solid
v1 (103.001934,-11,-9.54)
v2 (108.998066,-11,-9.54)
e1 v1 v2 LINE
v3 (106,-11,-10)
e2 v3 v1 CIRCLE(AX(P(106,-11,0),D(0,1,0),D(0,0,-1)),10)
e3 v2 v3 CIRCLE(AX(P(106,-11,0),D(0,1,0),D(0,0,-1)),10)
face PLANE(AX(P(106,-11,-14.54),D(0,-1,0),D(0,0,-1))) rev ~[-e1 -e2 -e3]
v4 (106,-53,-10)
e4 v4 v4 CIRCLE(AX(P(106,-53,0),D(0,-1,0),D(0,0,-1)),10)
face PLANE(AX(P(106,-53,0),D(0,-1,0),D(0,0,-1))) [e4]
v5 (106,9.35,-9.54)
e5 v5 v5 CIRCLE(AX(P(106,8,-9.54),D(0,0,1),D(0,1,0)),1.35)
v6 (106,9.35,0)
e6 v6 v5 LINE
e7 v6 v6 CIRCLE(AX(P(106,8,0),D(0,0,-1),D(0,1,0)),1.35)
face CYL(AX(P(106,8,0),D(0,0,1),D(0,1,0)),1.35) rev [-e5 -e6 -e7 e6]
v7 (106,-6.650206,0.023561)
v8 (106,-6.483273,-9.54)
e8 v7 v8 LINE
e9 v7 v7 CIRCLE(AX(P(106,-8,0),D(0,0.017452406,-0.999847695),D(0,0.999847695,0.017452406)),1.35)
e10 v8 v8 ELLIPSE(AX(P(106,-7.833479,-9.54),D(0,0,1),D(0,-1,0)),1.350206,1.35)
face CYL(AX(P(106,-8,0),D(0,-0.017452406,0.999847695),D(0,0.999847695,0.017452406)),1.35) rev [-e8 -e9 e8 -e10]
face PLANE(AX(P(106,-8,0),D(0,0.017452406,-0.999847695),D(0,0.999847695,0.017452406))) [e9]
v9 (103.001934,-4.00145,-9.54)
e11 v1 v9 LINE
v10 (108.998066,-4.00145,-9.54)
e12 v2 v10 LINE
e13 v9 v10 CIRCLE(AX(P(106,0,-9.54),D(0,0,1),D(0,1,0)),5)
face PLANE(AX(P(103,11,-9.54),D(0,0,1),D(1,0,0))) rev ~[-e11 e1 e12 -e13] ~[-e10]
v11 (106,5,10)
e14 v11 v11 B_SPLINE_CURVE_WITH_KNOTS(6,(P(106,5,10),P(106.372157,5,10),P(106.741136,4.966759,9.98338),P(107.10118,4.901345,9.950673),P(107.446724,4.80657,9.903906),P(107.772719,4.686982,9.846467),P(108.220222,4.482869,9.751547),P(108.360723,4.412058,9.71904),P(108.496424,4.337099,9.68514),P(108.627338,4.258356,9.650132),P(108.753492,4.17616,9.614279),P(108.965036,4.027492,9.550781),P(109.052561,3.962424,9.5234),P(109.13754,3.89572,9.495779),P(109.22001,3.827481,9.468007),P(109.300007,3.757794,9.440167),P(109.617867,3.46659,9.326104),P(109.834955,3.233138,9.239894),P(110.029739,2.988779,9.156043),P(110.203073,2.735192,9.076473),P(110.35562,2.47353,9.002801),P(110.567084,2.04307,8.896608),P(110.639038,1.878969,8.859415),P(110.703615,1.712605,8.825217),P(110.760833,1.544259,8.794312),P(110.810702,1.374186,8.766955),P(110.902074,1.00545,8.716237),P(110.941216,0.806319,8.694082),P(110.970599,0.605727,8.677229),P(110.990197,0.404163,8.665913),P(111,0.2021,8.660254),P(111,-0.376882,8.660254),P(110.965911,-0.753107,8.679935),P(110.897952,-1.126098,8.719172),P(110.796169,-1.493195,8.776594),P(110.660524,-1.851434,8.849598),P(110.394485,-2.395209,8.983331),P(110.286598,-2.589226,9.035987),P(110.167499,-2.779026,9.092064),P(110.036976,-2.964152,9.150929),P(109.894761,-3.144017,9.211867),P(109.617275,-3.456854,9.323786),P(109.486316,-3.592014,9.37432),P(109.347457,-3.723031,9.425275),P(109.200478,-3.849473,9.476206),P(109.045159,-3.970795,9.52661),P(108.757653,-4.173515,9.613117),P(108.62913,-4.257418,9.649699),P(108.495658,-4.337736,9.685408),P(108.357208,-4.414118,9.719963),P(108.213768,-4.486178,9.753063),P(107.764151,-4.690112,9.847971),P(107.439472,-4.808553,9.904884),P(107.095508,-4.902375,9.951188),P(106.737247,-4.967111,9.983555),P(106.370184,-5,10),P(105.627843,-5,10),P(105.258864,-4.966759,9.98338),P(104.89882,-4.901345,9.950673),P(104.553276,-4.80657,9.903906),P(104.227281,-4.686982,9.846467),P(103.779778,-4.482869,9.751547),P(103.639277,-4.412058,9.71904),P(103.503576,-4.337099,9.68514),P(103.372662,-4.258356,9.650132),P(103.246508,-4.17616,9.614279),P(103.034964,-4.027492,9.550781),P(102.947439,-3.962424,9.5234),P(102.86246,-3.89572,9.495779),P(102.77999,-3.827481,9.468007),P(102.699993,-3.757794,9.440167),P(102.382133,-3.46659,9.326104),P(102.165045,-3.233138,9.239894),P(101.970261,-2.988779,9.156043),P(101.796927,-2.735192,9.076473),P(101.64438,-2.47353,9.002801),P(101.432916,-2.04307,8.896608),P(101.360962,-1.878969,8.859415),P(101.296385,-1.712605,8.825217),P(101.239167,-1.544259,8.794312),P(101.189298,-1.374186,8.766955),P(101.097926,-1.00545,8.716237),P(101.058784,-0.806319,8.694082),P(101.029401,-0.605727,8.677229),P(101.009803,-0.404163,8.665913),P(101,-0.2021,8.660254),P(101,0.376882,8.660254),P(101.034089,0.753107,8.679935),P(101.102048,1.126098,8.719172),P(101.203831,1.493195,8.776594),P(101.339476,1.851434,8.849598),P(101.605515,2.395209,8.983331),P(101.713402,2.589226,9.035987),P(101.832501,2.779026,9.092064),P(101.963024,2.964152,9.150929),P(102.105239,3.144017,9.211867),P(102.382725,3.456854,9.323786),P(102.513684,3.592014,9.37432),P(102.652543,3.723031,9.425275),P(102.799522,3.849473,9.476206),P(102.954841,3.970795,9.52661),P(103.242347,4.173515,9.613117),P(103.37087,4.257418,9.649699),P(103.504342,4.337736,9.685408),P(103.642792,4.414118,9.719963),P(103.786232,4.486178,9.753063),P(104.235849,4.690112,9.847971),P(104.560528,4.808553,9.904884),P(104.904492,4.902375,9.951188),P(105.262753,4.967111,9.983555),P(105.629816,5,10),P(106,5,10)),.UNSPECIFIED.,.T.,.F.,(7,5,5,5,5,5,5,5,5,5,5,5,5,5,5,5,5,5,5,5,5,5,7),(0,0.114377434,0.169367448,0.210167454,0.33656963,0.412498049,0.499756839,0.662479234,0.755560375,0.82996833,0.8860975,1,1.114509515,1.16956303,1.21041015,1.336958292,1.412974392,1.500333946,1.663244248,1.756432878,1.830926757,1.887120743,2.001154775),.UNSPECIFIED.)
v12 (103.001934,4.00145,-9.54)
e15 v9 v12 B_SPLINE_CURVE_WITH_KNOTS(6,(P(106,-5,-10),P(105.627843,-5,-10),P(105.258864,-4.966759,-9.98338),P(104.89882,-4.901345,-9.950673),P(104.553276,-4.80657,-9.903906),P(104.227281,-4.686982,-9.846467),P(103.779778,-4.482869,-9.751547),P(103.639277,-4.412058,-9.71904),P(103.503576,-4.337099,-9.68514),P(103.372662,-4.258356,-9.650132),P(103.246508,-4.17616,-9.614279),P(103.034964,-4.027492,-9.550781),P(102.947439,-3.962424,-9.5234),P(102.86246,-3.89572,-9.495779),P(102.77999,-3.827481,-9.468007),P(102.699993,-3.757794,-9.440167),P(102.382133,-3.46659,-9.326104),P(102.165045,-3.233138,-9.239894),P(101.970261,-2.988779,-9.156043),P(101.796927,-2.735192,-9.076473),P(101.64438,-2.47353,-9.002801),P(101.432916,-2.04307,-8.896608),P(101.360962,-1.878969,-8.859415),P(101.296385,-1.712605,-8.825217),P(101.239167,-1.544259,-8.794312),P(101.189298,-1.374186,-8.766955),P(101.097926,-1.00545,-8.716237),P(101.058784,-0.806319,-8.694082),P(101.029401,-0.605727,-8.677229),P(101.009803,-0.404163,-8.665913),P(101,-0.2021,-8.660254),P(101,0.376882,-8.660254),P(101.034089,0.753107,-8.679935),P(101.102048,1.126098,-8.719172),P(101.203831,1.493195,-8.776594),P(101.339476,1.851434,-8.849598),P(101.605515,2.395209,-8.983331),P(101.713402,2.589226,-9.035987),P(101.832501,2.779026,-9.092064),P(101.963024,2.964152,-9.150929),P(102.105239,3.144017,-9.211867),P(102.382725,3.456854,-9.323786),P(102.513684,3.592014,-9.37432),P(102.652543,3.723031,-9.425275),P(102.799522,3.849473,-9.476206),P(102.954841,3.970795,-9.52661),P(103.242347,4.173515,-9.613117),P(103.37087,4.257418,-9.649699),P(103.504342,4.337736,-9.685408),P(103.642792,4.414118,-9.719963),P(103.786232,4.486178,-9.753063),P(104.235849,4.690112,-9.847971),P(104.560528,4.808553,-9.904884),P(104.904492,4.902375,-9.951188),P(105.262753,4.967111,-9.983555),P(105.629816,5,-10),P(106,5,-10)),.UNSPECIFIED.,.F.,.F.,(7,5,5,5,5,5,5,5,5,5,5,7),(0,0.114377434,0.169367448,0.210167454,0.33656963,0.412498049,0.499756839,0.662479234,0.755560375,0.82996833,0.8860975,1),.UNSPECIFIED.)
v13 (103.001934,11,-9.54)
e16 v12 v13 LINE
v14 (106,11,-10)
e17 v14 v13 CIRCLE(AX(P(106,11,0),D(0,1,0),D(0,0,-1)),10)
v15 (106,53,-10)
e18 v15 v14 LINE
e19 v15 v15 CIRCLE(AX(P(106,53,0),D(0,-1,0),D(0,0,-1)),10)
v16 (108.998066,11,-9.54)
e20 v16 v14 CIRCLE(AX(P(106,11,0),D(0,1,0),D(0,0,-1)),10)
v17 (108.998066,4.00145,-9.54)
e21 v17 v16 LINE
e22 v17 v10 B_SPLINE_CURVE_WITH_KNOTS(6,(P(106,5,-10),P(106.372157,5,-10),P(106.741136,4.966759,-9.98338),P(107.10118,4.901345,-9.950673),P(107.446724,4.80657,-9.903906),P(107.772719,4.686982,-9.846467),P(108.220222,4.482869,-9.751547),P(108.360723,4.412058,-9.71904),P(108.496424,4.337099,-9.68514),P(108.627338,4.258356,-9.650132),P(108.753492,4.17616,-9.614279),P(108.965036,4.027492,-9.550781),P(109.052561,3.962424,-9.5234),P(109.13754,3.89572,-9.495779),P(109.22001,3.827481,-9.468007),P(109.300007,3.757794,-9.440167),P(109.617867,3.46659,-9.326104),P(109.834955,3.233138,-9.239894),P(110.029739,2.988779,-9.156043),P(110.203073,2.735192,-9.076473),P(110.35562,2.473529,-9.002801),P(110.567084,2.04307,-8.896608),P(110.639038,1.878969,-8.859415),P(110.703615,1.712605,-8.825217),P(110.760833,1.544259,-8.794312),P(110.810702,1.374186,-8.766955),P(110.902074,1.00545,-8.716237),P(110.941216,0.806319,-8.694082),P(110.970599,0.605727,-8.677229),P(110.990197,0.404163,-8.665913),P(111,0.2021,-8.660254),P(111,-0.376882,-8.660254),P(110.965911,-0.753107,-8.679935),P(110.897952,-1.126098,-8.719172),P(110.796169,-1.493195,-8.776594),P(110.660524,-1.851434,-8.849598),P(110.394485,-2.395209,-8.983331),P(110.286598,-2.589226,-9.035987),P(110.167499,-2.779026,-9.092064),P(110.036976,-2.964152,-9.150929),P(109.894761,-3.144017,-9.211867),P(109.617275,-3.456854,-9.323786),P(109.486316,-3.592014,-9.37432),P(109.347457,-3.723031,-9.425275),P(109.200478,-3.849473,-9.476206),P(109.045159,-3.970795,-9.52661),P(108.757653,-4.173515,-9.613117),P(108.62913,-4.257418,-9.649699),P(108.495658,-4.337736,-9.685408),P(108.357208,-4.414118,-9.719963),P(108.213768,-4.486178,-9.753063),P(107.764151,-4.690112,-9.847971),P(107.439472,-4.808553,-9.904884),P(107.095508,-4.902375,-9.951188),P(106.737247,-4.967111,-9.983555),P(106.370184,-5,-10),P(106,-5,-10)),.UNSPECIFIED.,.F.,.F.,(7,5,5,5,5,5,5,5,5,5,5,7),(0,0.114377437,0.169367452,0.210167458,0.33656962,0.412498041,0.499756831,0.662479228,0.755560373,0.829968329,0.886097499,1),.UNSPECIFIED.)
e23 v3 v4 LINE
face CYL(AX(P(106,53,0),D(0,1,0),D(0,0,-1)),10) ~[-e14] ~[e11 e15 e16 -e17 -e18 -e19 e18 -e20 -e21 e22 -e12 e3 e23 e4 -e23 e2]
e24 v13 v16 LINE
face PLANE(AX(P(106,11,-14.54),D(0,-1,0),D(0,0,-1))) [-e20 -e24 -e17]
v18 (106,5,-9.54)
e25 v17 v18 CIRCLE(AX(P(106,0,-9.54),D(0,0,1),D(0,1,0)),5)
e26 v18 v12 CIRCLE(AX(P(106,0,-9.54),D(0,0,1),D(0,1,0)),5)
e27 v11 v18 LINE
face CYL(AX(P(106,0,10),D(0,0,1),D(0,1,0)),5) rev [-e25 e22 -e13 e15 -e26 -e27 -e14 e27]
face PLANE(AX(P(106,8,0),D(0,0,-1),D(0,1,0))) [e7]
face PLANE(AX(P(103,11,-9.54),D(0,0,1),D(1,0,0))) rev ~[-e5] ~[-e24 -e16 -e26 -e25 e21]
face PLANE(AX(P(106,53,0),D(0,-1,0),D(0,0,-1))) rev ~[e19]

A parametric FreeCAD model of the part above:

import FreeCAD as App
import Part
import Sketcher
from FreeCAD import Vector
Q = App.Units.Quantity

doc = App.newDocument("Part")
body = doc.addObject("PartDesign::Body", "Body")

# Sketch on XY plane
sketch1 = body.newObject("Sketcher::SketchObject", "Sketch")
sketch1.AttachmentSupport = (doc.getObject("XY_Plane"), [""])
sketch1.MapMode = "FlatFace"
sketch1.addGeometry(Part.Circle(Vector(0, 0, 0), Vector(0, 0, 1), 1.4), False)
sketch1.addConstraint(Sketcher.Constraint("Coincident", 0, 3, -1, 1))
sketch1.addConstraint(Sketcher.Constraint("Diameter", 0, Q("2.7 mm")))
pad1 = body.newObject("PartDesign::Pad", "Pad")
pad1.Profile = sketch1
pad1.Length = 10
body2 = doc.addObject("PartDesign::Body", "Body001")
doc.recompute()

body.Placement = App.Placement(Vector(0, 0, 85), App.Rotation(Vector(0, 1, 0), 91))
boolean = body2.newObject("PartDesign::Boolean", "Boolean")
boolean.Type = "Fuse"
boolean.addObjects([body])
body3 = doc.addObject("PartDesign::Body", "Body002")

# Sketch on XY plane
sketch2 = body3.newObject("Sketcher::SketchObject", "Sketch001")
sketch2.AttachmentSupport = (doc.getObject("XY_Plane002"), [""])
sketch2.MapMode = "FlatFace"
sketch2.addGeometry(Part.Circle(Vector(0, 0, 0), Vector(0, 0, 1), 1.4), False)
sketch2.addConstraint(Sketcher.Constraint("Coincident", 0, 3, -1, 1))
sketch2.addConstraint(Sketcher.Constraint("Diameter", 0, Q("2.7 mm")))
pad2 = body3.newObject("PartDesign::Pad", "Pad001")
pad2.Profile = sketch2
pad2.Length = 10
body4 = doc.addObject("PartDesign::Body", "Body003")
doc.recompute()

body3.Placement = App.Placement(Vector(0, 0, 0), App.Rotation(Vector(0, 1, 0), 90))
boolean2 = body4.newObject("PartDesign::Boolean", "Boolean001")
boolean2.Type = "Fuse"
boolean2.addObjects([body3])
body5 = doc.addObject("PartDesign::Body", "Body004")
doc.recompute()

body4.Placement = App.Placement(Vector(0, 0, 69), App.Rotation(Vector(0, 0, 1), 0))
boolean3 = body5.newObject("PartDesign::Boolean", "Boolean002")
boolean3.Type = "Fuse"
boolean3.addObjects([body4])
body6 = doc.addObject("PartDesign::Body", "Body005")

# Sketch on XY plane
sketch3 = body6.newObject("Sketcher::SketchObject", "Sketch002")
sketch3.AttachmentSupport = (doc.getObject("XY_Plane005"), [""])
sketch3.MapMode = "FlatFace"
sketch3.addGeometry(Part.Circle(Vector(0, 0, 0), Vector(0, 0, 1), 5), False)
sketch3.addConstraint(Sketcher.Constraint("Coincident", 0, 3, -1, 1))
sketch3.addConstraint(Sketcher.Constraint("Diameter", 0, Q("10 mm")))
pad3 = body6.newObject("PartDesign::Pad", "Pad002")
pad3.Profile = sketch3
pad3.Length = 20
body7 = doc.addObject("PartDesign::Body", "Body006")
doc.recompute()

body6.Placement = App.Placement(Vector(0, 0, 0), App.Rotation(Vector(0, 1, 0), 90))
boolean4 = body7.newObject("PartDesign::Boolean", "Boolean003")
boolean4.Type = "Fuse"
boolean4.addObjects([body6])
body8 = doc.addObject("PartDesign::Body", "Body007")
doc.recompute()

body7.Placement = App.Placement(Vector(-10, 0, 77), App.Rotation(Vector(0, 0, 1), 0))
boolean5 = body8.newObject("PartDesign::Boolean", "Boolean004")
boolean5.Type = "Fuse"
boolean5.addObjects([body7])
body9 = doc.addObject("PartDesign::Body", "Body008")

# Sketch on XY plane
sketch4 = body9.newObject("Sketcher::SketchObject", "Sketch003")
sketch4.AttachmentSupport = (doc.getObject("XY_Plane008"), [""])
sketch4.MapMode = "FlatFace"
sketch4.AttachmentOffset = App.Placement(Vector(0, 0, 66), App.Rotation())
sketch4.addGeometry(Part.LineSegment(Vector(10, 3, 0), Vector(10, -3, 0)), False)
sketch4.addGeometry(Part.LineSegment(Vector(10, -3, 0), Vector(20, -3, 0)), False)
sketch4.addGeometry(Part.LineSegment(Vector(20, -3, 0), Vector(20, 3, 0)), False)
sketch4.addGeometry(Part.LineSegment(Vector(20, 3, 0), Vector(10, 3, 0)), False)
sketch4.addConstraint(Sketcher.Constraint("Coincident", 0, 2, 1, 1))
sketch4.addConstraint(Sketcher.Constraint("Coincident", 1, 2, 2, 1))
sketch4.addConstraint(Sketcher.Constraint("Coincident", 2, 2, 3, 1))
sketch4.addConstraint(Sketcher.Constraint("Coincident", 3, 2, 0, 1))
sketch4.addConstraint(Sketcher.Constraint("Vertical", 0))
sketch4.addConstraint(Sketcher.Constraint("Horizontal", 1))
sketch4.addConstraint(Sketcher.Constraint("Vertical", 2))
sketch4.addConstraint(Sketcher.Constraint("Horizontal", 3))
sketch4.addConstraint(Sketcher.Constraint("DistanceX", 1, 1, 1, 2, Q("10 mm")))
sketch4.addConstraint(Sketcher.Constraint("DistanceY", 0, 2, 0, 1, Q("6 mm")))
sketch4.addConstraint(Sketcher.Constraint("DistanceY", 0, 2, -1, 1, Q("3 mm")))
sketch4.addConstraint(Sketcher.Constraint("DistanceX", -1, 1, 0, 2, Q("9.54 mm")))
pad4 = body9.newObject("PartDesign::Pad", "Pad003")
pad4.Profile = sketch4
pad4.Length = 22
body10 = doc.addObject("PartDesign::Body", "Body009")

# Sketch on XY plane
sketch5 = body10.newObject("Sketcher::SketchObject", "Sketch004")
sketch5.AttachmentSupport = (doc.getObject("XY_Plane009"), [""])
sketch5.MapMode = "FlatFace"
sketch5.AttachmentOffset = App.Placement(Vector(0, 0, 24), App.Rotation())
sketch5.addGeometry(Part.Circle(Vector(0, 0, 0), Vector(0, 0, 1), 10), False)
sketch5.addConstraint(Sketcher.Constraint("Coincident", 0, 3, -1, 1))
sketch5.addConstraint(Sketcher.Constraint("Diameter", 0, Q("20 mm")))
pad5 = body10.newObject("PartDesign::Pad", "Pad004")
pad5.Profile = sketch5
pad5.Length = 106
doc.recompute()

boolean6 = body10.newObject("PartDesign::Boolean", "Boolean005")
boolean6.Type = "Cut"
boolean6.addObjects([body9])
doc.recompute()

boolean7 = body10.newObject("PartDesign::Boolean", "Boolean006")
boolean7.Type = "Cut"
boolean7.addObjects([body8])
doc.recompute()

boolean8 = body10.newObject("PartDesign::Boolean", "Boolean007")
boolean8.Type = "Cut"
boolean8.addObjects([body5])
doc.recompute()

boolean9 = body10.newObject("PartDesign::Boolean", "Boolean008")
boolean9.Type = "Cut"
boolean9.addObjects([body2])
body11 = doc.addObject("PartDesign::Body", "Body010")
doc.recompute()

body10.Placement = App.Placement(Vector(0, 0, 0), App.Rotation(Vector(0, 1, 0), 90))
boolean10 = body11.newObject("PartDesign::Boolean", "Boolean009")
boolean10.Type = "Fuse"
boolean10.addObjects([body10])
body12 = doc.addObject("PartDesign::Body", "Body011")
doc.recompute()

body11.Placement = App.Placement(Vector(106, 77, 0), App.Rotation(Vector(0, 0, 1), 270))
boolean11 = body12.newObject("PartDesign::Boolean", "Boolean010")
boolean11.Type = "Fuse"
boolean11.addObjects([body11])

doc.recompute()
